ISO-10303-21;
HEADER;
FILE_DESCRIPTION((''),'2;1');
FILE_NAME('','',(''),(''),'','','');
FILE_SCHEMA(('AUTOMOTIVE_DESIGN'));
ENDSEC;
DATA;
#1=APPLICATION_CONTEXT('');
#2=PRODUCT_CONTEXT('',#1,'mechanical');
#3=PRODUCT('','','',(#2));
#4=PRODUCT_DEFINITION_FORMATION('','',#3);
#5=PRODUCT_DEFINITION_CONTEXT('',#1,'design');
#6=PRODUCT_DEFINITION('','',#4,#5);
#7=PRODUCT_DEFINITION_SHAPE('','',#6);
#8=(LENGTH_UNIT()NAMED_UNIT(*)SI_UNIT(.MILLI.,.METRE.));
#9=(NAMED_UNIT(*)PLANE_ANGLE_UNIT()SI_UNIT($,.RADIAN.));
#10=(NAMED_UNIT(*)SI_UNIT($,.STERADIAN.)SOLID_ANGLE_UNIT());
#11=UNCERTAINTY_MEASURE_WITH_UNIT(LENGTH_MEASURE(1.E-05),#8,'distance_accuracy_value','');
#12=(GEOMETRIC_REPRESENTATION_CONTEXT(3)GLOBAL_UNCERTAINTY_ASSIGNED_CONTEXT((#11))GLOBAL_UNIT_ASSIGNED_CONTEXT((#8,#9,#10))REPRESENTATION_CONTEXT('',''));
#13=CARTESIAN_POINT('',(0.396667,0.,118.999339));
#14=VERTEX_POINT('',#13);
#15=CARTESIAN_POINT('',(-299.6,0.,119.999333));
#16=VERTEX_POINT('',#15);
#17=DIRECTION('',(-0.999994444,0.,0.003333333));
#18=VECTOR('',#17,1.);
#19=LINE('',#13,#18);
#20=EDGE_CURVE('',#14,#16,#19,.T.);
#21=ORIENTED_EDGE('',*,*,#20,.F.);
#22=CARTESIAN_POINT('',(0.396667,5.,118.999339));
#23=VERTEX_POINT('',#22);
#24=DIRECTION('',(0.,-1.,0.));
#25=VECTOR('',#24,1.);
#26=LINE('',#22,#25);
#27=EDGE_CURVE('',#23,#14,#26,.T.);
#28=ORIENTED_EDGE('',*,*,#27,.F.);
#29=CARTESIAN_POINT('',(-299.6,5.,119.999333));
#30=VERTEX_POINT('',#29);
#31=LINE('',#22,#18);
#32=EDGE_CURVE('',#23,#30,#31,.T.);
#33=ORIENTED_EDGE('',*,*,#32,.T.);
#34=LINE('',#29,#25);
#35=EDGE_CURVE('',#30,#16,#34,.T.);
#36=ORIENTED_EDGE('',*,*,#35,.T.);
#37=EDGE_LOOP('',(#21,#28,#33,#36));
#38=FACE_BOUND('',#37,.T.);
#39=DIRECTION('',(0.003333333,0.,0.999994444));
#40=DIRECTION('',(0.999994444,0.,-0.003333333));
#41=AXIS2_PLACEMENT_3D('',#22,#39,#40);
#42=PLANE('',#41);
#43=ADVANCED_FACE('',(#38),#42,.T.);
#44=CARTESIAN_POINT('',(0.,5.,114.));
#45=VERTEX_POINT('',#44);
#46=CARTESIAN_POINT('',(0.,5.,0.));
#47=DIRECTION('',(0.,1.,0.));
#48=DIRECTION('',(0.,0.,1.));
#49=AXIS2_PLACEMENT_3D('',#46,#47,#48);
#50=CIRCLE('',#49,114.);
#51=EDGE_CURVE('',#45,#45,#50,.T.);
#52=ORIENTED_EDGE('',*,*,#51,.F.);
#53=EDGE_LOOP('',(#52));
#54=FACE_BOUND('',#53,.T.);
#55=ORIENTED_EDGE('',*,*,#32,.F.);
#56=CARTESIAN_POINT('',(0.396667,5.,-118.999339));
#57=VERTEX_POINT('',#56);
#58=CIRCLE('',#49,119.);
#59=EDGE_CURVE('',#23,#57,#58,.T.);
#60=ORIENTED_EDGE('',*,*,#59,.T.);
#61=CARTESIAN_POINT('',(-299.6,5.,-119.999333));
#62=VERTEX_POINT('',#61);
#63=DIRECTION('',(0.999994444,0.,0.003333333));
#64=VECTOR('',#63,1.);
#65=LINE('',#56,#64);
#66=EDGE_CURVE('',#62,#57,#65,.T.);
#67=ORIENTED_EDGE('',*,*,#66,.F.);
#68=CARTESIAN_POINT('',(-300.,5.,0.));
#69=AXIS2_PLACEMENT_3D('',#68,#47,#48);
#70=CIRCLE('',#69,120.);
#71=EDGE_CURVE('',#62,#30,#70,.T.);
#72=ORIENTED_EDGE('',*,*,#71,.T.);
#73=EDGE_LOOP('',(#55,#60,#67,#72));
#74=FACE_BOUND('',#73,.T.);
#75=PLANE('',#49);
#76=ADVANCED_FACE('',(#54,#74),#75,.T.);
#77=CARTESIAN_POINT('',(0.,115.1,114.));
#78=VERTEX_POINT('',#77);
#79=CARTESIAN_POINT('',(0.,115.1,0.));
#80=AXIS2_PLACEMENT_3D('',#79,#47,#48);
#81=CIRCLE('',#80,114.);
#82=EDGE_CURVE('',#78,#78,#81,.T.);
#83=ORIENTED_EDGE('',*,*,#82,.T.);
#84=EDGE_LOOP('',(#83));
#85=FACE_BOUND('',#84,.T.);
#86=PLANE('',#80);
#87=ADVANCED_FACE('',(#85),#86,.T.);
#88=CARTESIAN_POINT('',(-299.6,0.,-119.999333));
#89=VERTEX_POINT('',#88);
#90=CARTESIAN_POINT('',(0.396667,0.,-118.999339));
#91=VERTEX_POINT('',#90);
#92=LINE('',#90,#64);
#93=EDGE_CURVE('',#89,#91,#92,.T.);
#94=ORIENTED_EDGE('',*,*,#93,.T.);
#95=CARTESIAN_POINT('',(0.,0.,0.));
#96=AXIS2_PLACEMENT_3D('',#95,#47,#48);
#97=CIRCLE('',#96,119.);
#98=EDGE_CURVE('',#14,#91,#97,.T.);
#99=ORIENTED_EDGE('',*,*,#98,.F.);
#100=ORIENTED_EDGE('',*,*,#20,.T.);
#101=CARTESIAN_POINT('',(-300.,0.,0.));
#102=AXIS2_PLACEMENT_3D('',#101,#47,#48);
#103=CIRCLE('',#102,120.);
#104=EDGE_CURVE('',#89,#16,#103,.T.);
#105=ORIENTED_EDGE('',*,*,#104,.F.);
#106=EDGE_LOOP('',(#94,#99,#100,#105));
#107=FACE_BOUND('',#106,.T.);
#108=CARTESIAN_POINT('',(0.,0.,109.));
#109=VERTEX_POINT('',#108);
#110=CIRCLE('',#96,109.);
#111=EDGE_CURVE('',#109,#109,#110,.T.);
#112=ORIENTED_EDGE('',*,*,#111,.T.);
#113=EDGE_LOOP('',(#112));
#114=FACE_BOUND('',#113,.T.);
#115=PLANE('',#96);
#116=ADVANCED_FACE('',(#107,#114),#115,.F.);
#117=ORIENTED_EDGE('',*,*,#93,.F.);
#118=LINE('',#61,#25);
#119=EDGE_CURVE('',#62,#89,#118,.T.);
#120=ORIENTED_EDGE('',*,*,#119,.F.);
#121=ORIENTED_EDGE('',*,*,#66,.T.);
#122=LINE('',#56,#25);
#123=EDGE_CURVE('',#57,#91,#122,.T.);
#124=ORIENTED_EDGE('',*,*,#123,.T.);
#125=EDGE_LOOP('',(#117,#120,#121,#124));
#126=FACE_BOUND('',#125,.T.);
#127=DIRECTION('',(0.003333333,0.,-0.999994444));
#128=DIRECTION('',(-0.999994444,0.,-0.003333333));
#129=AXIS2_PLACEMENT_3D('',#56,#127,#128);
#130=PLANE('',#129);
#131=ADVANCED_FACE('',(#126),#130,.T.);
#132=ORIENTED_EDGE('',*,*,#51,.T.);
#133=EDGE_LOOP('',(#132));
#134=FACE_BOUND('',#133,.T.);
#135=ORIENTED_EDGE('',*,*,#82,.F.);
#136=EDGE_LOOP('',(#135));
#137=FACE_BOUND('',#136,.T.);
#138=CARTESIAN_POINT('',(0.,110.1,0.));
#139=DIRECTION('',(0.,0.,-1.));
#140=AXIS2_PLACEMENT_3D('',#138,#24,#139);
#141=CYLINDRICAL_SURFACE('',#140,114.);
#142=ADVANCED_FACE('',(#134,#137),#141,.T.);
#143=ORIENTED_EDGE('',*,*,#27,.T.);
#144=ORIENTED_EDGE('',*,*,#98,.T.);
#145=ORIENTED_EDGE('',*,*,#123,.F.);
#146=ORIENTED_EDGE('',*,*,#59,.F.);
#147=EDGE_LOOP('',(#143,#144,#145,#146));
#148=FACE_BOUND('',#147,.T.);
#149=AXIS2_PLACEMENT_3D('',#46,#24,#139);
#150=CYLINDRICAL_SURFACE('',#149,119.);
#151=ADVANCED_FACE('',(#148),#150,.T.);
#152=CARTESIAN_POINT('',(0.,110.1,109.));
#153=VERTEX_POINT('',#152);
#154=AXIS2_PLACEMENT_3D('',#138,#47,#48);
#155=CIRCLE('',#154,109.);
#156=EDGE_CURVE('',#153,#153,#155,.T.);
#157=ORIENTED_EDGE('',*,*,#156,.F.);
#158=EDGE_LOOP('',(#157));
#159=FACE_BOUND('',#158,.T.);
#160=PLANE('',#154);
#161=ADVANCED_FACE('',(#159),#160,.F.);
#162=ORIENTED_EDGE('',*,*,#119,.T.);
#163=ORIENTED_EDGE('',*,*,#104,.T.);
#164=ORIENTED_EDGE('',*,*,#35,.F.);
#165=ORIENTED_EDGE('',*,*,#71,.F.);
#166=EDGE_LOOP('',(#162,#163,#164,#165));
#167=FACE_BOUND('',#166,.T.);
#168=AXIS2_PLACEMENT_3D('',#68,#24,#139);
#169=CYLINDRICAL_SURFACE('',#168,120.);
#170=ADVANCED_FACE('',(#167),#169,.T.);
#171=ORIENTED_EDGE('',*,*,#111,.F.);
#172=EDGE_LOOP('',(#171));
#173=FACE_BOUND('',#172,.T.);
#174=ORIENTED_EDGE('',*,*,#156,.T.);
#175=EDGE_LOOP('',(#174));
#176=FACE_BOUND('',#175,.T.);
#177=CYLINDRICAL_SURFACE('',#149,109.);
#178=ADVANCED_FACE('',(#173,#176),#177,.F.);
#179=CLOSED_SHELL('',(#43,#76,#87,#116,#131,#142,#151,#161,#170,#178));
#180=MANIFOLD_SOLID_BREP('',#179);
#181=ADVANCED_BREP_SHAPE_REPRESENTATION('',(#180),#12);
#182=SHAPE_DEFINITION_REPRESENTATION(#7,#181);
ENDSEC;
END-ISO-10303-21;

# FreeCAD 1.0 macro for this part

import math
import FreeCAD as App
import Part
import Sketcher

V = App.Vector

doc = App.newDocument("Part")
body = doc.addObject("PartDesign::Body", "Body")

# Sketch on XZ plane
sketch1 = doc.addObject("Sketcher::SketchObject", "Sketch")
body.addObject(sketch1)
sketch1.AttachmentSupport = (doc.XZ_Plane, [""])
sketch1.MapMode = "FlatFace"
sketch1.addGeometry(Part.LineSegment(V(0, -119, 0), V(-300, -120, 0)), False)
sketch1.addGeometry(Part.ArcOfCircle(Part.Circle(V(-300, 0, 0), V(0, 0, 1), 120), math.radians(90), math.radians(270)), False)
sketch1.addGeometry(Part.LineSegment(V(-300, 120, 0), V(0, 119, 0)), False)
sketch1.addGeometry(Part.ArcOfCircle(Part.Circle(V(0, 0, 0), V(0, 0, 1), 119), math.radians(-90), math.radians(90)), False)
sketch1.addGeometry(Part.Circle(V(0, 0, 0), V(0, 0, 1), 109), False)
sketch1.addConstraint(Sketcher.Constraint("Tangent", 0, 2, 1, 2))
sketch1.addConstraint(Sketcher.Constraint("Tangent", 1, 1, 2, 1))
sketch1.addConstraint(Sketcher.Constraint("Tangent", 2, 2, 3, 2))
sketch1.addConstraint(Sketcher.Constraint("Tangent", 3, 1, 0, 1))
sketch1.addConstraint(Sketcher.Constraint("Coincident", 3, 3, -1, 1))
sketch1.addConstraint(Sketcher.Constraint("Coincident", 4, 3, -1, 1))
sketch1.addConstraint(Sketcher.Constraint("PointOnObject", 1, 3, -1))
sketch1.addConstraint(Sketcher.Constraint("Diameter", 4, 218.0))
sketch1.addConstraint(Sketcher.Constraint("Radius", 1, 120.0))
sketch1.addConstraint(Sketcher.Constraint("Radius", 3, 119.0))
sketch1.addConstraint(Sketcher.Constraint("DistanceX", 1, 3, -1, 1, 300.0))
pad1 = doc.addObject("PartDesign::Pad", "Pad")
body.addObject(pad1)
pad1.Profile = sketch1
pad1.Length = 5
pad1.Reversed = True

# Sketch on XZ plane
sketch2 = doc.addObject("Sketcher::SketchObject", "Sketch001")
body.addObject(sketch2)
sketch2.AttachmentSupport = (doc.XZ_Plane, [""])
sketch2.MapMode = "FlatFace"
sketch2.AttachmentOffset = App.Placement(V(0, 0, -5), App.Rotation())
sketch2.addGeometry(Part.Circle(V(0, 0, 0), V(0, 0, 1), 114), False)
sketch2.addGeometry(Part.Circle(V(0, 0, 0), V(0, 0, 1), 109), False)
sketch2.addConstraint(Sketcher.Constraint("Coincident", 0, 3, -1, 1))
sketch2.addConstraint(Sketcher.Constraint("Coincident", 1, 3, -1, 1))
sketch2.addConstraint(Sketcher.Constraint("Diameter", 0, 228.0))
sketch2.addConstraint(Sketcher.Constraint("Diameter", 1, 218.0))
pad2 = doc.addObject("PartDesign::Pad", "Pad001")
body.addObject(pad2)
pad2.Profile = sketch2
pad2.Length = 105.1
pad2.Reversed = True

# Sketch on XZ plane
sketch3 = doc.addObject("Sketcher::SketchObject", "Sketch002")
body.addObject(sketch3)
sketch3.AttachmentSupport = (doc.XZ_Plane, [""])
sketch3.MapMode = "FlatFace"
sketch3.AttachmentOffset = App.Placement(V(0, 0, -110.1), App.Rotation())
sketch3.addGeometry(Part.Circle(V(0, 0, 0), V(0, 0, 1), 114), False)
sketch3.addConstraint(Sketcher.Constraint("Coincident", 0, 3, -1, 1))
sketch3.addConstraint(Sketcher.Constraint("Diameter", 0, 228.0))
pad3 = doc.addObject("PartDesign::Pad", "Pad002")
body.addObject(pad3)
pad3.Profile = sketch3
pad3.Length = 5
pad3.Reversed = True

doc.recompute()
